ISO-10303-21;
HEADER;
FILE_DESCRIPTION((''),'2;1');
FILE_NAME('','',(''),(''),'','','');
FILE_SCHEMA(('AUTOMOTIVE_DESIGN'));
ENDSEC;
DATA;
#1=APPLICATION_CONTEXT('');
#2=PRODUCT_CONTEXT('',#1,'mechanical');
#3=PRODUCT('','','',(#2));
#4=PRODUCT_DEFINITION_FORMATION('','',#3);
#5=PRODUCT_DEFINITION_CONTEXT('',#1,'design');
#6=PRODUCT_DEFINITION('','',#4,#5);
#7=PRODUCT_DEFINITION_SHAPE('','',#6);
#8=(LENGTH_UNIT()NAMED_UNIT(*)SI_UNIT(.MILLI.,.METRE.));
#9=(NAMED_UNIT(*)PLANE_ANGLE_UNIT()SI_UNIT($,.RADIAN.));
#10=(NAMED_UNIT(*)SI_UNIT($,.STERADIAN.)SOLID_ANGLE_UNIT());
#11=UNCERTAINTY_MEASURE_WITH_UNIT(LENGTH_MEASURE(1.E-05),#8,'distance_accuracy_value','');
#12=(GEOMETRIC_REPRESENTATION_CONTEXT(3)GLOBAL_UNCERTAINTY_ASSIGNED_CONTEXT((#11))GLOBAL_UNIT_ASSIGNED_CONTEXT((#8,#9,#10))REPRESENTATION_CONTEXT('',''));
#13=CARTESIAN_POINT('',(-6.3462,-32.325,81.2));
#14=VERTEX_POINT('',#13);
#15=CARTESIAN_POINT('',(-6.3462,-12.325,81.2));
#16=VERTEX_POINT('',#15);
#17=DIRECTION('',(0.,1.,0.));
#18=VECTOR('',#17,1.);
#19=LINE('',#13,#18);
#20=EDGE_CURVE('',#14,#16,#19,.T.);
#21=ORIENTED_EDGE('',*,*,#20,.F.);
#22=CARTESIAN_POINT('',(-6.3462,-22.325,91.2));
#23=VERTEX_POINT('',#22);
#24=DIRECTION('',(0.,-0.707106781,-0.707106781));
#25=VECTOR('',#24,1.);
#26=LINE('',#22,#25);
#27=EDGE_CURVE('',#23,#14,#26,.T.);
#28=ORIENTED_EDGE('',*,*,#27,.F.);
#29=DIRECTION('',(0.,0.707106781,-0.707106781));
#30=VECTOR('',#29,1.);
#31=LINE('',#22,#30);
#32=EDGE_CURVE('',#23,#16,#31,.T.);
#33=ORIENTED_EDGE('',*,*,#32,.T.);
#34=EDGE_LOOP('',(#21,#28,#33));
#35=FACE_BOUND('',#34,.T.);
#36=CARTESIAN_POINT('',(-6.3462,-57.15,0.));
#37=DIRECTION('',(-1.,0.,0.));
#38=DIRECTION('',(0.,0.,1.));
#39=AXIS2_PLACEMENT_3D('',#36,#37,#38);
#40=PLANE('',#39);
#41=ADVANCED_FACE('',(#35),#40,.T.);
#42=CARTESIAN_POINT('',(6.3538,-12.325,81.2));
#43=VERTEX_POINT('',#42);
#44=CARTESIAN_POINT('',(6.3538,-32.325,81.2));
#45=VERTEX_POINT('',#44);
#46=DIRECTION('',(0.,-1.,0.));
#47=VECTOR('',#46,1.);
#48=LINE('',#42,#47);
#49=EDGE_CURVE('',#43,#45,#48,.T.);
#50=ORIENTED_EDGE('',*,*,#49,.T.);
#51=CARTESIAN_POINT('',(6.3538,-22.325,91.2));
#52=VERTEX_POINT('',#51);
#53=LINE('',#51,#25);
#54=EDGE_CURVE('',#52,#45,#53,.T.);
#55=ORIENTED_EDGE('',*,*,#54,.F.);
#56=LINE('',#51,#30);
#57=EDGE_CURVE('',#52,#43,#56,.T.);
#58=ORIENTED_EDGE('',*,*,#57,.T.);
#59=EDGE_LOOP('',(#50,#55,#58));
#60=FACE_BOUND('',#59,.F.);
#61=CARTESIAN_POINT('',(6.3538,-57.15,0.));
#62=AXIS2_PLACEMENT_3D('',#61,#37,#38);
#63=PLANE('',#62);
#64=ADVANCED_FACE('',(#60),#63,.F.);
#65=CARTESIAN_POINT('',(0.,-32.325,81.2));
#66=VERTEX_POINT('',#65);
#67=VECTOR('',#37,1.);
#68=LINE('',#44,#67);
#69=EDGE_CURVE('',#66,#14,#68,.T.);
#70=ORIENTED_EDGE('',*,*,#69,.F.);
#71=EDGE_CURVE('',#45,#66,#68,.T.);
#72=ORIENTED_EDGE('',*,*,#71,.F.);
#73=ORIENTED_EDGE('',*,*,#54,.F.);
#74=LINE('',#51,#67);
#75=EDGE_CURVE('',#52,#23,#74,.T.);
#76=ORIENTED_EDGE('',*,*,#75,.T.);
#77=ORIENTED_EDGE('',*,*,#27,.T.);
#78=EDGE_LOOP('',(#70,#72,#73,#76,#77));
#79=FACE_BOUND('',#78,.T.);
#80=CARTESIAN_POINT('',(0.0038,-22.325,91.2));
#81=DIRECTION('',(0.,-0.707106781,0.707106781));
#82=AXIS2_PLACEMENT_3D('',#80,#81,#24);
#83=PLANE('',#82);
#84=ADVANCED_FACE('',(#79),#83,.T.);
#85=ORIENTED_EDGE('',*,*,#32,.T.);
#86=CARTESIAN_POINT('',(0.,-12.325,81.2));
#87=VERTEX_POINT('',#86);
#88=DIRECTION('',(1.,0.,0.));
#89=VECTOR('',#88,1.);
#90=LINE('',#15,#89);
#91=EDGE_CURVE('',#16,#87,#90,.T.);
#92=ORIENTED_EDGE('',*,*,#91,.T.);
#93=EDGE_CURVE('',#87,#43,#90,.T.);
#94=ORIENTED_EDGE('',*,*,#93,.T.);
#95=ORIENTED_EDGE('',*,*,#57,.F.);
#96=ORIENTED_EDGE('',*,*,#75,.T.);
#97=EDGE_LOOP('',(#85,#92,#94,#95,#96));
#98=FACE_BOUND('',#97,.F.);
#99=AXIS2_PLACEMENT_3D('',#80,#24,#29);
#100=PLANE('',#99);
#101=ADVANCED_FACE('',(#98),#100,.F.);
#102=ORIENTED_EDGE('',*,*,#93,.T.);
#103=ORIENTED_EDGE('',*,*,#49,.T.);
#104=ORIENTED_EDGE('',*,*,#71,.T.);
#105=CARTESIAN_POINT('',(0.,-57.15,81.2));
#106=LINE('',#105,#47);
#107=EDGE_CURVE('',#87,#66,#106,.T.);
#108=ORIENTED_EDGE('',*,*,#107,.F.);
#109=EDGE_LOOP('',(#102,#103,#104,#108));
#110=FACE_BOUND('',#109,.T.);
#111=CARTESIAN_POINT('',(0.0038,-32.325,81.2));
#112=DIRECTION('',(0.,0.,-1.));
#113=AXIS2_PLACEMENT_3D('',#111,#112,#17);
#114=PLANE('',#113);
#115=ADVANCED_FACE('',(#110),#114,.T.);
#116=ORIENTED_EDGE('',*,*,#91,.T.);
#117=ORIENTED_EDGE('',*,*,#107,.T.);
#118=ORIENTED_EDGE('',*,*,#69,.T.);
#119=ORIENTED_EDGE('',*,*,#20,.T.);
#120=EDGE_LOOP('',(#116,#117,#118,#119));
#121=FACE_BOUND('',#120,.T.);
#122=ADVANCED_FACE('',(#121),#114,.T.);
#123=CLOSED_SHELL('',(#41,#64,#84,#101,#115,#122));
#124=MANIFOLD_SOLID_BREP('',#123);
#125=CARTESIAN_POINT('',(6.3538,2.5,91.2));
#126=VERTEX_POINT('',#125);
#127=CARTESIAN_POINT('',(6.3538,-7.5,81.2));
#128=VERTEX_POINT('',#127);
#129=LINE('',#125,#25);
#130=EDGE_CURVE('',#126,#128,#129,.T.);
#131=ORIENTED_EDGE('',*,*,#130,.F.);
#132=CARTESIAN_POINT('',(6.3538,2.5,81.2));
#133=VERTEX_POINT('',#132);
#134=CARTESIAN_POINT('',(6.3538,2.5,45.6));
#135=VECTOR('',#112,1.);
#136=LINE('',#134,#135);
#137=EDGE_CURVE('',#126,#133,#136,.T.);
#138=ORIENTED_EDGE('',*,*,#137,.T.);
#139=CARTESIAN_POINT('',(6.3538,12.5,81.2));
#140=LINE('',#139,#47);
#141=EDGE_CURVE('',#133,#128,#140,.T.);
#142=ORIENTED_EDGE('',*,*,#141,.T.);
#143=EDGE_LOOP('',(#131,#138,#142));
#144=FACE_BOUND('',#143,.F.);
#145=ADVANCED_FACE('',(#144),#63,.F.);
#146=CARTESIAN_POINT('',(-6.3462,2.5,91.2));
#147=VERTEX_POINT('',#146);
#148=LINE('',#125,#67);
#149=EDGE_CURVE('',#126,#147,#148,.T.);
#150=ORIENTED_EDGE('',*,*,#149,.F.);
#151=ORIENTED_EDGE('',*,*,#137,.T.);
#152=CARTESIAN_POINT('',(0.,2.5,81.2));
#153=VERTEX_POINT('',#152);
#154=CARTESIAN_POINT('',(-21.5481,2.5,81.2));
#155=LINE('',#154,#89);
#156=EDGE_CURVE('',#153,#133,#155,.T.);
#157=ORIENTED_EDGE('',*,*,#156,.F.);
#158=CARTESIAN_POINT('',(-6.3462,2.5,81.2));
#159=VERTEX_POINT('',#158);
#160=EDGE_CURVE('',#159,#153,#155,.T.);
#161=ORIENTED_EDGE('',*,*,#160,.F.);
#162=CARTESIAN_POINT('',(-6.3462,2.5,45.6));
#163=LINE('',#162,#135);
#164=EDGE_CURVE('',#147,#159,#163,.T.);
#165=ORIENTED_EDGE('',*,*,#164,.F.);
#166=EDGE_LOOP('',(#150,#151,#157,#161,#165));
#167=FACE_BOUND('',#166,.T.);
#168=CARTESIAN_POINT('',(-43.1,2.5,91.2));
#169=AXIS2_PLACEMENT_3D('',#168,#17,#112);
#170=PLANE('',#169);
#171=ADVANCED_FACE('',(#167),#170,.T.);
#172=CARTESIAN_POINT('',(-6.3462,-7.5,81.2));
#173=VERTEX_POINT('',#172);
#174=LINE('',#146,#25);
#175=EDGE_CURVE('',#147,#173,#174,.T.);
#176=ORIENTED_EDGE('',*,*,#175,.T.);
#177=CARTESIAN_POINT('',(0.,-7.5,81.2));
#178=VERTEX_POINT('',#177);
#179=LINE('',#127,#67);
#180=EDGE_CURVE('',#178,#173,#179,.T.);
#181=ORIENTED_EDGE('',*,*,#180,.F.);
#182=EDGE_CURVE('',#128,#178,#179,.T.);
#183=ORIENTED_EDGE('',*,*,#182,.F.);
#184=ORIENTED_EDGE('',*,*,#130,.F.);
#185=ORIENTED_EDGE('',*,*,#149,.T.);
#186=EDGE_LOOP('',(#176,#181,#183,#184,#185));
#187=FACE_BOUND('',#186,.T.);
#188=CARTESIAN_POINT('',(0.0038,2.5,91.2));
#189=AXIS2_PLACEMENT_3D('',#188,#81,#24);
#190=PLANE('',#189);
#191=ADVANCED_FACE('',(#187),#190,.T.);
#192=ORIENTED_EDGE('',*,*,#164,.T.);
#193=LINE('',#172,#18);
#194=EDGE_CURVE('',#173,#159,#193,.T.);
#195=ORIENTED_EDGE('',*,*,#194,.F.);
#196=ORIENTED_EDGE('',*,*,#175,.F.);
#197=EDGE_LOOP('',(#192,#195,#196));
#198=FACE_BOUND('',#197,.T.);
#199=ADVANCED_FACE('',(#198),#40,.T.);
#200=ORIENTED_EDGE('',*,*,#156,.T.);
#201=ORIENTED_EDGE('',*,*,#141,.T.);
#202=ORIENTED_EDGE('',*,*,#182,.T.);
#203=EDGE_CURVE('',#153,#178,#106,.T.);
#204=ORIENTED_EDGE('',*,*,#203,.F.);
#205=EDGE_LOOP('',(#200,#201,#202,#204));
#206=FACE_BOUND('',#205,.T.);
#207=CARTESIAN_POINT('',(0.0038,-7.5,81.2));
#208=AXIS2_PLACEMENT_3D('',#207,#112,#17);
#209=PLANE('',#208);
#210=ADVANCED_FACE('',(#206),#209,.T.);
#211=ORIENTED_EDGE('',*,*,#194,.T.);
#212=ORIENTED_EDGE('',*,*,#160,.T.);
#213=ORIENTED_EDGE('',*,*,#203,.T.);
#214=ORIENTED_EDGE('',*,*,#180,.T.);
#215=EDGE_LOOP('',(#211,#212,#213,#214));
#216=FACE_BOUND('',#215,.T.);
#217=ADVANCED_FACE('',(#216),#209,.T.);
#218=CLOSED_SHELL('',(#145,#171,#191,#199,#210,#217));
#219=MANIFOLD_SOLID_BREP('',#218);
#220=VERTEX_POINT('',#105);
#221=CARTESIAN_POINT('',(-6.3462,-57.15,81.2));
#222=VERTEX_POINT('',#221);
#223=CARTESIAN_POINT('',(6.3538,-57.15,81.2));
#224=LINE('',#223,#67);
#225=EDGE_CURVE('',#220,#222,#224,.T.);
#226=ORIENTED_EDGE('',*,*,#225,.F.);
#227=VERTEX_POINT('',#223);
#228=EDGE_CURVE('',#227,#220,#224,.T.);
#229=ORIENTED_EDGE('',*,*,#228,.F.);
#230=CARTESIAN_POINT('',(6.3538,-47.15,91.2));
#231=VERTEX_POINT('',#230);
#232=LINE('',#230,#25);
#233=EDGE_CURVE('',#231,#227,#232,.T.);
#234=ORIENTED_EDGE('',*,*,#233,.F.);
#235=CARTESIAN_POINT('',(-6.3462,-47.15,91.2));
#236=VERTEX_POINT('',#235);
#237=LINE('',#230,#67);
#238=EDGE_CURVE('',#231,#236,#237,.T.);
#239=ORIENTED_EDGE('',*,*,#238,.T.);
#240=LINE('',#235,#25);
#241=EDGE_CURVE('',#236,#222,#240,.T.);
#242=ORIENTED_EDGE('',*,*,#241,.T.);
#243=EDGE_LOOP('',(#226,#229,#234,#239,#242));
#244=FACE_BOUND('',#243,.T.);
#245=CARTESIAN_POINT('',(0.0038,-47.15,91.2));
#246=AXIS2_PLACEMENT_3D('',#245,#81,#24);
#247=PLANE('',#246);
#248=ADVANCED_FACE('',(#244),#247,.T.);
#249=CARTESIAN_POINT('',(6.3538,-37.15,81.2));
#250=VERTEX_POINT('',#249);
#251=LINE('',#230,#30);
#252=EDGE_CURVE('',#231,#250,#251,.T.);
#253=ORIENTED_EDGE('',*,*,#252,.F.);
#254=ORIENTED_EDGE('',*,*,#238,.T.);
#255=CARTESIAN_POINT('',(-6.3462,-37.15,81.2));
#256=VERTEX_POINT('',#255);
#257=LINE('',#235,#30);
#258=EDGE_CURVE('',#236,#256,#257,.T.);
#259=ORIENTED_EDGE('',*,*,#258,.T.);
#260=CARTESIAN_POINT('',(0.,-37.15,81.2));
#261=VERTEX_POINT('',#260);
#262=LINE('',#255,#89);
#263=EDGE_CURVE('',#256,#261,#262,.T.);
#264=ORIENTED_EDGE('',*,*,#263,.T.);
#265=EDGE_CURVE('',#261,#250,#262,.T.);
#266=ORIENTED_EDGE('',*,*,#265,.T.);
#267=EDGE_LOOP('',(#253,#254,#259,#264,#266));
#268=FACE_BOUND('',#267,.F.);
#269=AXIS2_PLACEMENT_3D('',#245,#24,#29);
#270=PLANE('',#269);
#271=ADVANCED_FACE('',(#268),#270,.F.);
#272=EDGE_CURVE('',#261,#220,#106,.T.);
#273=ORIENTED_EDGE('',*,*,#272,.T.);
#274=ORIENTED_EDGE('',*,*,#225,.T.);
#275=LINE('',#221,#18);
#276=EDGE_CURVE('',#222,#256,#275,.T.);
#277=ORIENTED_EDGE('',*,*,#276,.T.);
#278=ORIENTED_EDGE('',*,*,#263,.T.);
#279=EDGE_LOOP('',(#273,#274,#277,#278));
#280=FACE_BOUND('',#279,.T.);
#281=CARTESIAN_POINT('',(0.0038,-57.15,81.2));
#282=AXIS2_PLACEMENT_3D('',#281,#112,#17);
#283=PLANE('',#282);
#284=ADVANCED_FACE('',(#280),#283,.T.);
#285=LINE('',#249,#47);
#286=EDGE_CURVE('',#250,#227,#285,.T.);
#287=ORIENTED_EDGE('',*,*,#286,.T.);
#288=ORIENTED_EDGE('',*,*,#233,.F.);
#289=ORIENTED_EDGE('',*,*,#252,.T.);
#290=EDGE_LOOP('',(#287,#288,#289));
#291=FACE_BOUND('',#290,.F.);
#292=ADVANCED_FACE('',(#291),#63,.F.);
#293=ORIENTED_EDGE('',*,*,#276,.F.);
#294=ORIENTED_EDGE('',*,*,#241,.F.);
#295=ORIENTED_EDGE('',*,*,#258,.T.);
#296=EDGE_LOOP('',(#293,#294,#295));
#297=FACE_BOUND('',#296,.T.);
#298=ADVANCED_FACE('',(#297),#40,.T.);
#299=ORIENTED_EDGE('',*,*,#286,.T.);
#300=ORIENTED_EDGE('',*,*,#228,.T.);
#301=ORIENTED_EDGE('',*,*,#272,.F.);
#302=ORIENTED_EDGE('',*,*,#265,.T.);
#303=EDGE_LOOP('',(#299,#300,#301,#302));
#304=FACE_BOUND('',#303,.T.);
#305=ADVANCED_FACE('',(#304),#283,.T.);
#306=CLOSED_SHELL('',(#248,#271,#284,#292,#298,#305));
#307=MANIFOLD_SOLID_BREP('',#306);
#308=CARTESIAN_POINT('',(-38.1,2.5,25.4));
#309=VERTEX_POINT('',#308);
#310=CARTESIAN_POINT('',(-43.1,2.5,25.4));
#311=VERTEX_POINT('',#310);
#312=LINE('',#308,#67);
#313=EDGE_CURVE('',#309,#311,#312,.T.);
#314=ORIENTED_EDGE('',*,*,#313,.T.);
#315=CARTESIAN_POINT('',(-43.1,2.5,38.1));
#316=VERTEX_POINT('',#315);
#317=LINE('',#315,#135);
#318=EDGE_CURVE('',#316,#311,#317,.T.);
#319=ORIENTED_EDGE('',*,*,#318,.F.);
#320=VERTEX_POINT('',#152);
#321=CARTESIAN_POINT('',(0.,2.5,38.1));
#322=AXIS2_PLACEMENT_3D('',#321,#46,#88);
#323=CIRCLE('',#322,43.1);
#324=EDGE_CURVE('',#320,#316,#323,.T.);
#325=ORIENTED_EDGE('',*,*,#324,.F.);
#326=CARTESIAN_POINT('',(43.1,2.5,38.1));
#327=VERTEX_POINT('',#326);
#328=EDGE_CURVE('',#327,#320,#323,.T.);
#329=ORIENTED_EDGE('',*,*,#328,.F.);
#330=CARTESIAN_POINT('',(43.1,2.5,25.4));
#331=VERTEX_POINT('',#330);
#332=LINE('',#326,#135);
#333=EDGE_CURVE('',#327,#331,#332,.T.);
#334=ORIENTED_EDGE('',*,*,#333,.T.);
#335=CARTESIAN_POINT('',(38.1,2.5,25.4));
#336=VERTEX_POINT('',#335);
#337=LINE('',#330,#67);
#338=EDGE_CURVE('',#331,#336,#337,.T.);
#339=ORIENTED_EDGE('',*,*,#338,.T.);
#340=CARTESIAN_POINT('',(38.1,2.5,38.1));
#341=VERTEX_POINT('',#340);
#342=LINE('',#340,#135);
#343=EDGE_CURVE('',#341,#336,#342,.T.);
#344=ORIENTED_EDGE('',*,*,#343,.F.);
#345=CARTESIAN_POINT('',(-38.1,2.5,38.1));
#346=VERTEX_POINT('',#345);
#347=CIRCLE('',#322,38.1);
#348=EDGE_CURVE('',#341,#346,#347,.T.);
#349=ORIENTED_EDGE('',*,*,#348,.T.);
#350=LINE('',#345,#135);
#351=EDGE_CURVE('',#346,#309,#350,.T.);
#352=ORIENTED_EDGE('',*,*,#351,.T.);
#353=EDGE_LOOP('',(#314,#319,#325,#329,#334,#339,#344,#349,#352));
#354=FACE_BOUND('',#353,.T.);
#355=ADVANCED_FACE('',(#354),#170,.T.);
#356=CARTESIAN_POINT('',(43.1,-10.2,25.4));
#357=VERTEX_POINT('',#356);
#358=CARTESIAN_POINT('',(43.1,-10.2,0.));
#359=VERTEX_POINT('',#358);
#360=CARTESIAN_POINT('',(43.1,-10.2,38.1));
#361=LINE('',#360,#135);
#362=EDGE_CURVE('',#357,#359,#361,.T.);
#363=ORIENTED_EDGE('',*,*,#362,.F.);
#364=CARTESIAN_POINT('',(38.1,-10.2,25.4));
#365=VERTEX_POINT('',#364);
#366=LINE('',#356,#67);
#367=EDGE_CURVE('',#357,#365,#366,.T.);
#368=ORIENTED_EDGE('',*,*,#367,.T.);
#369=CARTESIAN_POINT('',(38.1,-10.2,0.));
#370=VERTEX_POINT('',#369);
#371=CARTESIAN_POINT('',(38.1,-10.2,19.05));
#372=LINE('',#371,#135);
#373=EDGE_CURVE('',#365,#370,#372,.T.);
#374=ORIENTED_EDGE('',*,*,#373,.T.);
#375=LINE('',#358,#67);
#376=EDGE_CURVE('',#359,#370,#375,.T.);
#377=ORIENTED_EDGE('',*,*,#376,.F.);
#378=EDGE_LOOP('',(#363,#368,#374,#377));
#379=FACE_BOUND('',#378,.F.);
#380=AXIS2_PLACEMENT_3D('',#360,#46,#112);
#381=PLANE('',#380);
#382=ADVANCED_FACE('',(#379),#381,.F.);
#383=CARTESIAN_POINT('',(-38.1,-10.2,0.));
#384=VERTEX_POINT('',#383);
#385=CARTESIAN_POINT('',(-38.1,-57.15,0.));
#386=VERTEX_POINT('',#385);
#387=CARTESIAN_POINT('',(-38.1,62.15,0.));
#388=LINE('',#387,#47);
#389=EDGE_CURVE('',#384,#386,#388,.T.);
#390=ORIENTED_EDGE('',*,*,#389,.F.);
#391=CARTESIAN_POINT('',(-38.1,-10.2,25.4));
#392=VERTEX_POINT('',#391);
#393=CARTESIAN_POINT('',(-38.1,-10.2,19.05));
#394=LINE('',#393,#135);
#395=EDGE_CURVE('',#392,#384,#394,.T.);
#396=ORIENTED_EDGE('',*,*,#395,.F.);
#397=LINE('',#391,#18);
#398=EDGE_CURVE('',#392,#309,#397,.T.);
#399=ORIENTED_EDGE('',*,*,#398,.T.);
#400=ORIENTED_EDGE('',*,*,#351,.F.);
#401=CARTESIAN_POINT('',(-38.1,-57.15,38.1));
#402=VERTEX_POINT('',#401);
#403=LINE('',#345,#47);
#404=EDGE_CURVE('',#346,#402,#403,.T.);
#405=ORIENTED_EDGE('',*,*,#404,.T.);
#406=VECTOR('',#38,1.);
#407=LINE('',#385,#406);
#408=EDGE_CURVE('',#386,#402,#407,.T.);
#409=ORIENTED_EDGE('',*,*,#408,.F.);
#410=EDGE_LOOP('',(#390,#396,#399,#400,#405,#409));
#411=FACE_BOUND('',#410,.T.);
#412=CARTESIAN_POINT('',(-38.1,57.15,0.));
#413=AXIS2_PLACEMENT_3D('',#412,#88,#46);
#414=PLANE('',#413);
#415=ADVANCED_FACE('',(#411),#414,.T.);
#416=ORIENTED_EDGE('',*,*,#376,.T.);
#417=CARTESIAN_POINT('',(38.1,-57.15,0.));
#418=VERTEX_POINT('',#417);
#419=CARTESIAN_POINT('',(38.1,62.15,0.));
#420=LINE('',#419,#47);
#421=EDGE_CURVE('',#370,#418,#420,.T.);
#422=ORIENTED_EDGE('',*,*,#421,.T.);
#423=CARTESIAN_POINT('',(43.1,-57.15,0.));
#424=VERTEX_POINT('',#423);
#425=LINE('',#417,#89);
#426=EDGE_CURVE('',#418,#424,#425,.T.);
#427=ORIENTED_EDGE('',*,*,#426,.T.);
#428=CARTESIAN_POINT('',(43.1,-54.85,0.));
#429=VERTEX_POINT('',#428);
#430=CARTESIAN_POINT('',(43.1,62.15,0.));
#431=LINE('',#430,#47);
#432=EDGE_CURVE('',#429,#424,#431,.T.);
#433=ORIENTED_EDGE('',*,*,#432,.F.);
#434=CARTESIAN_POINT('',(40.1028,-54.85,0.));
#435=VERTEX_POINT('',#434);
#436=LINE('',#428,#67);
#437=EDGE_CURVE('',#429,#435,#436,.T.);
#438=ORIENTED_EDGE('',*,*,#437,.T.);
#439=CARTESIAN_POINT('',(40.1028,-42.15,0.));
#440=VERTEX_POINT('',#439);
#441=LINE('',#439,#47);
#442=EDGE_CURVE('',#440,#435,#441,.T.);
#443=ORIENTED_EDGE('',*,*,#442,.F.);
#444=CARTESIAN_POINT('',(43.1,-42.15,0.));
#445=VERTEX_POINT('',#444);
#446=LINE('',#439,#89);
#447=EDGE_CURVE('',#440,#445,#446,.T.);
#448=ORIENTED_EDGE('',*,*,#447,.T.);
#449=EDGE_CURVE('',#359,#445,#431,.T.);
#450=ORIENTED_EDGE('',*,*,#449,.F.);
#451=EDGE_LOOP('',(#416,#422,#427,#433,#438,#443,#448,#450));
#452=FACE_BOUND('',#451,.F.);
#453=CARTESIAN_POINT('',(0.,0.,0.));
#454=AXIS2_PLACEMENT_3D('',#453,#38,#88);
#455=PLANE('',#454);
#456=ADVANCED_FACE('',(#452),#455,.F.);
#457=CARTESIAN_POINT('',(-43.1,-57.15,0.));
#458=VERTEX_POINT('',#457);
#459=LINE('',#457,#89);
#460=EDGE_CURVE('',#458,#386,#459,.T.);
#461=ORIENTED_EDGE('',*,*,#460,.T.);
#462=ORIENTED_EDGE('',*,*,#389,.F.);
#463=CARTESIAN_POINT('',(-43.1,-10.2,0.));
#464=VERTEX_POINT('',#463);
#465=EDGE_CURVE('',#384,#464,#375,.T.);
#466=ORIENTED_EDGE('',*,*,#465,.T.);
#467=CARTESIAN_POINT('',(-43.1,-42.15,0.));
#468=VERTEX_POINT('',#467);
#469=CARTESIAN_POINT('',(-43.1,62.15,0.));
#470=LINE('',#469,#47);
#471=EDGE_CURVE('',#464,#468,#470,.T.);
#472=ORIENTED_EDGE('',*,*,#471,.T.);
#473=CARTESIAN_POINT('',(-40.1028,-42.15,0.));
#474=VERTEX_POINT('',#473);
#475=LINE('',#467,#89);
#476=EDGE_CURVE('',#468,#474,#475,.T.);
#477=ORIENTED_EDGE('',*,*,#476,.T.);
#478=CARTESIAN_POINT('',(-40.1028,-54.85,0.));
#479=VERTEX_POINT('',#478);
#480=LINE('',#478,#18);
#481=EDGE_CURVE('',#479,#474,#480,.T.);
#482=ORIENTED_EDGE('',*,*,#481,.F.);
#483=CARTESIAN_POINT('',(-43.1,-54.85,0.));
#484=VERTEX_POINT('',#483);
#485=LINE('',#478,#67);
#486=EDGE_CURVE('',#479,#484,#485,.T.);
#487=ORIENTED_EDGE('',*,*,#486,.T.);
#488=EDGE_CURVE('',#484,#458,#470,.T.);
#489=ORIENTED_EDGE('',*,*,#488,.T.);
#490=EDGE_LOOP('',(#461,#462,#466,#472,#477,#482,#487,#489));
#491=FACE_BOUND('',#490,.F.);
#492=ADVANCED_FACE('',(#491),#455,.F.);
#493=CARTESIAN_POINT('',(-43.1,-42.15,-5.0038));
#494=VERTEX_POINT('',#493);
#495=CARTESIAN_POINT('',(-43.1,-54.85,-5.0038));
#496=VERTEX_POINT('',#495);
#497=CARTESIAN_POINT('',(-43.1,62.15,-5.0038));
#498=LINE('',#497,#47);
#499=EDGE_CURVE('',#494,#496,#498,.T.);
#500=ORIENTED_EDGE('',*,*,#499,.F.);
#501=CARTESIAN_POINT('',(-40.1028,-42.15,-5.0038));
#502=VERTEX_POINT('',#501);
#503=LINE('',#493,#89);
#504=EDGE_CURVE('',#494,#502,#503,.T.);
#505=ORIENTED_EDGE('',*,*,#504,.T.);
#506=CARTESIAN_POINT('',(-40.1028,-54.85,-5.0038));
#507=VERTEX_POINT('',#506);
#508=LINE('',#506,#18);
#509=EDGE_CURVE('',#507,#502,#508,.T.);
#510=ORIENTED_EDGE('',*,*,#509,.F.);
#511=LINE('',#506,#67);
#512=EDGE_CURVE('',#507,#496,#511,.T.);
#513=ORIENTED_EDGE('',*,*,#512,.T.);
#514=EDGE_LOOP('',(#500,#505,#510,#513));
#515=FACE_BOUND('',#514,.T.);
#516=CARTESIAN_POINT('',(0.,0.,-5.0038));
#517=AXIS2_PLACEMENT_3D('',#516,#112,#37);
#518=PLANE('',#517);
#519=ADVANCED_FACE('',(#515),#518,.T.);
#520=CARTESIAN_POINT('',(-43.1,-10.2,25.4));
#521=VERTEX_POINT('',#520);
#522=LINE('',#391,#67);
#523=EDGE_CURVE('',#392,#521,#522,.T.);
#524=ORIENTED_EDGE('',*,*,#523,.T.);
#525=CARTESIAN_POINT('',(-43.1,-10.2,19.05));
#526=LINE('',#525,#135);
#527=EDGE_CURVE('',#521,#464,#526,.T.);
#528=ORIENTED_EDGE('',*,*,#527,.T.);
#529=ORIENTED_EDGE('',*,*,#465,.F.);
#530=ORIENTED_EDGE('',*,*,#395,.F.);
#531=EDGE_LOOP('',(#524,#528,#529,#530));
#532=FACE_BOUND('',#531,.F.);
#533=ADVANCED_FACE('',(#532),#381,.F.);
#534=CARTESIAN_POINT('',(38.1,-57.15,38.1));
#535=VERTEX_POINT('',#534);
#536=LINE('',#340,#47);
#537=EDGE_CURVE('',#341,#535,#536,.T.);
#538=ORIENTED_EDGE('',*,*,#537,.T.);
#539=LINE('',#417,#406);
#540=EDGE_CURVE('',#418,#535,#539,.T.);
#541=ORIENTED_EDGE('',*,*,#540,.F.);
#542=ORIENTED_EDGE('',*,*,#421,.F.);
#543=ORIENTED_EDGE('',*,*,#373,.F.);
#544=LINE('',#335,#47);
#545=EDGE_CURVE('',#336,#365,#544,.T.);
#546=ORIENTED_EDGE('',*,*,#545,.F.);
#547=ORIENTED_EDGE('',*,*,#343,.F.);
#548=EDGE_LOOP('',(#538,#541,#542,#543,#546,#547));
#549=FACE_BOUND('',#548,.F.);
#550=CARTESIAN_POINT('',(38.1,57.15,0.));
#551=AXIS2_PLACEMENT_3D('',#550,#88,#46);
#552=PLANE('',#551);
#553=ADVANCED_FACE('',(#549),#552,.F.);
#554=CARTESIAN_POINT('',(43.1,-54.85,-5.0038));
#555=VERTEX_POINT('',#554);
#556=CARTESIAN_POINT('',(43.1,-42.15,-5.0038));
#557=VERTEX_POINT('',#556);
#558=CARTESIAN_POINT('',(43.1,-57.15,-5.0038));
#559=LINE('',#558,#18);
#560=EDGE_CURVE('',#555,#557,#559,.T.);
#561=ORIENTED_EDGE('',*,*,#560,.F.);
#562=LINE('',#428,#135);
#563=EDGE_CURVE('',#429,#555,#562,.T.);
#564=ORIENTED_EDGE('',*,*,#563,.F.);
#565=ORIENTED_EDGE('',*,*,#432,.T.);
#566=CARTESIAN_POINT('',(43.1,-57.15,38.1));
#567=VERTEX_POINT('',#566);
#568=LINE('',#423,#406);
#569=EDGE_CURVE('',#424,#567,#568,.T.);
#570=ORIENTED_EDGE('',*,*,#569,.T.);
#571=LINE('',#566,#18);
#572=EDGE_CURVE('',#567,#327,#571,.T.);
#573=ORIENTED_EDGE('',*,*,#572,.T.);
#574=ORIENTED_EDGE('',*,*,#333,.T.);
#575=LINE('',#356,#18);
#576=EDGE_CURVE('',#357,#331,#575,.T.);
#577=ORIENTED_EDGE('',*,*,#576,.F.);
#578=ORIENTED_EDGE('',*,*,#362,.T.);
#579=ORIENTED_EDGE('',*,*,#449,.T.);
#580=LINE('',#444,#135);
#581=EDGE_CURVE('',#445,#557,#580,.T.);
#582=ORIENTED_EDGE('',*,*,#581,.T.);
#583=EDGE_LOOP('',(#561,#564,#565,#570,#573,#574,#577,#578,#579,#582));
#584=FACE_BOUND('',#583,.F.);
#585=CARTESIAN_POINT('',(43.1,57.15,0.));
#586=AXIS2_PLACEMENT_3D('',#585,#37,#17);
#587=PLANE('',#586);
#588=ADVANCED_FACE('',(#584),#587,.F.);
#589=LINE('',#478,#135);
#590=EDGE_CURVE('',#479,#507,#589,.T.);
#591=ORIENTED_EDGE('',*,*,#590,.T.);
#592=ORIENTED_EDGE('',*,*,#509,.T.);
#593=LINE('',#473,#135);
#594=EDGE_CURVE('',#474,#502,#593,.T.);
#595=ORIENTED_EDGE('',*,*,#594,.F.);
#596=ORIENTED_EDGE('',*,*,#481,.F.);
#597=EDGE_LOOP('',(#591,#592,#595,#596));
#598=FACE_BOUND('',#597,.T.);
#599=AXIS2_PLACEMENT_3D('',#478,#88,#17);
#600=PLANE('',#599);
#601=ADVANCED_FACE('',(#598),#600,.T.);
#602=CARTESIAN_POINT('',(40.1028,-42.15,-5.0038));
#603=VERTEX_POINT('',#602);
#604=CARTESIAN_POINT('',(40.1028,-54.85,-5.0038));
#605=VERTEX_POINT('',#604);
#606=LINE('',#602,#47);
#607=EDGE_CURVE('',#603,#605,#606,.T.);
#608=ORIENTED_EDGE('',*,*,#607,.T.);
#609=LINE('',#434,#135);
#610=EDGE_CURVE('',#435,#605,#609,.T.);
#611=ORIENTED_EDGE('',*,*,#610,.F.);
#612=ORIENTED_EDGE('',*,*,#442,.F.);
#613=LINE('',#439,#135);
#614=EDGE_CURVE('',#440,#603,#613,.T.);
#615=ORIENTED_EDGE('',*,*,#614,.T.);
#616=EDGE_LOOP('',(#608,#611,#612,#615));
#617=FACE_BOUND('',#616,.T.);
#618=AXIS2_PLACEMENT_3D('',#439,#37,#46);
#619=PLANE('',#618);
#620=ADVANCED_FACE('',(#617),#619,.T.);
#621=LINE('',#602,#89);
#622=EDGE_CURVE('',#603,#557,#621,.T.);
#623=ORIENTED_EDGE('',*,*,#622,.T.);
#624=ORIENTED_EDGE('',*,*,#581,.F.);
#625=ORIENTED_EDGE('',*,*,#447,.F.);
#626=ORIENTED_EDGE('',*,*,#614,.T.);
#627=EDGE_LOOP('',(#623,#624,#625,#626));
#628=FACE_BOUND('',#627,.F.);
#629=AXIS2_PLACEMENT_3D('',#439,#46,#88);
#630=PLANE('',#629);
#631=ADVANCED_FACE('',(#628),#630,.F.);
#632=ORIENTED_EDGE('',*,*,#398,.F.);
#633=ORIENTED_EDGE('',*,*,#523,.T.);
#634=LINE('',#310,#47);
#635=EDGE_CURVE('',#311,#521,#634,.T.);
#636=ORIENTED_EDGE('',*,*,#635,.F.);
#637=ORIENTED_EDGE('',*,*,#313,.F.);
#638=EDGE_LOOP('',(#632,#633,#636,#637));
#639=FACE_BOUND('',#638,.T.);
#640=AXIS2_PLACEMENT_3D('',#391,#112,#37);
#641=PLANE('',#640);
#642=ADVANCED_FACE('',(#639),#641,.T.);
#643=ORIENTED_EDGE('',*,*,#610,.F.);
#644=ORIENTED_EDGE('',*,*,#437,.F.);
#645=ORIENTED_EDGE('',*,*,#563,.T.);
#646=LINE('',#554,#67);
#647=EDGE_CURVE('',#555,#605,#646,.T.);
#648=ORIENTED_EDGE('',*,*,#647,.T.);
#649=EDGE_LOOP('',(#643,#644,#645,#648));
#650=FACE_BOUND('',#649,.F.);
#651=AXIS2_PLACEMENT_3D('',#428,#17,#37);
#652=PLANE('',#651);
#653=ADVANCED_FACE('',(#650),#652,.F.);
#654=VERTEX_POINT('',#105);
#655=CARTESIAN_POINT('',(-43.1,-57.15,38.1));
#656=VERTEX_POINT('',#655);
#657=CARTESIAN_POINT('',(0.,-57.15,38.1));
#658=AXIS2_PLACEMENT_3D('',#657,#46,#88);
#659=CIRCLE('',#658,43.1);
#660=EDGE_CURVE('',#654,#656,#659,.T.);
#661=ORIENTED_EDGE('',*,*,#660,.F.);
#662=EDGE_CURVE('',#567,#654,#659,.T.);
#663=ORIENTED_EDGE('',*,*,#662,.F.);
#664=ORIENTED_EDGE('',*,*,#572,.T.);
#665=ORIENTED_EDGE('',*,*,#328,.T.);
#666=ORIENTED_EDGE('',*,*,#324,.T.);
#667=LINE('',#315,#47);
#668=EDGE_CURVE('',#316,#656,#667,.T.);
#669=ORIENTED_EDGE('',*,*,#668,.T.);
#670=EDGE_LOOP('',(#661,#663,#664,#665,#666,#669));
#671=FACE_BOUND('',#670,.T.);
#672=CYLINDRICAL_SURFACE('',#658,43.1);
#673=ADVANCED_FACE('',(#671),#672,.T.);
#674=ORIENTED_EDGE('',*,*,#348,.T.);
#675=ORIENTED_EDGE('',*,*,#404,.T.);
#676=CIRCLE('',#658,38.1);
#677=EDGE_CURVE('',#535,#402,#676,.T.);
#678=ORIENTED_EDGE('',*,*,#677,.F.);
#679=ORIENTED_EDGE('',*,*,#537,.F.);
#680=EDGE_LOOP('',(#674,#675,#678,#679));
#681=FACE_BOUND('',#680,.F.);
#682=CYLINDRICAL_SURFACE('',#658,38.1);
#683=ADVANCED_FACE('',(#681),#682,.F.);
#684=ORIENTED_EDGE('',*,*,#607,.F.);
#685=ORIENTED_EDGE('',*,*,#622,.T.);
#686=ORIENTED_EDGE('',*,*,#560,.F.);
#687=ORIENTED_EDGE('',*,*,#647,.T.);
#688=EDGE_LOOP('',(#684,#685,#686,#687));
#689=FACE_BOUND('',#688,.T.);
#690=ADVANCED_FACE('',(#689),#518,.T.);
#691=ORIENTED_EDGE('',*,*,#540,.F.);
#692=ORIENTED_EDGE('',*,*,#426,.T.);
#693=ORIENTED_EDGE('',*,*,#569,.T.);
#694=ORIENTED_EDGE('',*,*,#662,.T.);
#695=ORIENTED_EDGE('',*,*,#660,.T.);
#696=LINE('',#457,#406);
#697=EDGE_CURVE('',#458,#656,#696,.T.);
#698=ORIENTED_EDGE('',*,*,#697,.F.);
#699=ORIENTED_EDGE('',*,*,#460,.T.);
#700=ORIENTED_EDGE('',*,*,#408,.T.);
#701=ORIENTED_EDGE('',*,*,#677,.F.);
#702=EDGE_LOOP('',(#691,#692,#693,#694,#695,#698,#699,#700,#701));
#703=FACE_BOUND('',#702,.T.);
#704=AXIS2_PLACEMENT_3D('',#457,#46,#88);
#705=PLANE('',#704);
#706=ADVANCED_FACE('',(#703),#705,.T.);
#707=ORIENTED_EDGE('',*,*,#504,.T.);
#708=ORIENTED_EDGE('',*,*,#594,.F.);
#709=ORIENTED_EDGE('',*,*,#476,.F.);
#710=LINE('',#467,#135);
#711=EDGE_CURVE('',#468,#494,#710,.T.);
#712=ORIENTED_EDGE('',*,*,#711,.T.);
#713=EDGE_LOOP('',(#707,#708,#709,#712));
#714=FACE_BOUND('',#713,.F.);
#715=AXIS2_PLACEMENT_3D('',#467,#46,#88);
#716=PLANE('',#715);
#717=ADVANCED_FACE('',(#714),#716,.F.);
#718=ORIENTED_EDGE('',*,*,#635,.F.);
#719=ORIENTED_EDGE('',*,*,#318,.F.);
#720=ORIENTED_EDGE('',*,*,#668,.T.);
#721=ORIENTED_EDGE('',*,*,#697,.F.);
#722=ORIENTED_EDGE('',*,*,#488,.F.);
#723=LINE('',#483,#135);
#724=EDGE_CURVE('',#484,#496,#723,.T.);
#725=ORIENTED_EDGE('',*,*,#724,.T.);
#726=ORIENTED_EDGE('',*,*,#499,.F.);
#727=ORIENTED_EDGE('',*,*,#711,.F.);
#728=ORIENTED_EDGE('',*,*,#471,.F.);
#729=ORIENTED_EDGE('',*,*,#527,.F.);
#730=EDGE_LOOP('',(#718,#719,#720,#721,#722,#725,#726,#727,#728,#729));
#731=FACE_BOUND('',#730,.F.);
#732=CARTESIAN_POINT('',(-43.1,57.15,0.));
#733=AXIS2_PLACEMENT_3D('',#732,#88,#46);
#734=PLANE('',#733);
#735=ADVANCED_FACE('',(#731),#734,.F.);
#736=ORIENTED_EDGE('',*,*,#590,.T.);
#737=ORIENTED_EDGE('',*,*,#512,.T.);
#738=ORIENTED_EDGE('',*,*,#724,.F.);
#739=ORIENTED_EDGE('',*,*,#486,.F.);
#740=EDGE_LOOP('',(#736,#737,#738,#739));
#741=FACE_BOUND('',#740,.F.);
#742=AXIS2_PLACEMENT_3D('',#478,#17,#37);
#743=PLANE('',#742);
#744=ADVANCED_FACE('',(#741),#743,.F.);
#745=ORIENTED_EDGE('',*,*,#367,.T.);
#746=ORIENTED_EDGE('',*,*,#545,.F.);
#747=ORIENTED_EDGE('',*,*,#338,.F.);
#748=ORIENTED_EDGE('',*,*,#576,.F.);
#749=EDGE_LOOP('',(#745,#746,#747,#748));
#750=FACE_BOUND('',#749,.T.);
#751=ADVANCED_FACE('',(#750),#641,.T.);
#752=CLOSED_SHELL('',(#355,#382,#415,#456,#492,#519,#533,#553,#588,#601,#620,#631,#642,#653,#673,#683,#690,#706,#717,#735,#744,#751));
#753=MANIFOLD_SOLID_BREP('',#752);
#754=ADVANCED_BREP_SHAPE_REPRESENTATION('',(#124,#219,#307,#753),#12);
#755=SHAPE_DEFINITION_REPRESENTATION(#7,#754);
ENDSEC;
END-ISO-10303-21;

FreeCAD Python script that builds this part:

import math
import FreeCAD as App
import Part
import Sketcher
from FreeCAD import Vector
Q = App.Units.Quantity

doc = App.newDocument("Part")
body = doc.addObject("PartDesign::Body", "Body")
body.AllowCompound = True

# Sketch on XY plane
sketch1 = body.newObject("Sketcher::SketchObject", "Sketch")
sketch1.AttachmentSupport = (doc.getObject("XY_Plane"), [""])
sketch1.MapMode = "FlatFace"
sketch1.addGeometry([
    Part.LineSegment(Vector(-43, -57, 0), Vector(-38, -57, 0)),  # 0
    Part.LineSegment(Vector(-38, -57, 0), Vector(-38, 57, 0)),  # 1
    Part.LineSegment(Vector(-38, 57, 0), Vector(38, 57, 0)),  # 2
    Part.LineSegment(Vector(38, 57, 0), Vector(38, -57, 0)),  # 3
    Part.LineSegment(Vector(38, -57, 0), Vector(43, -57, 0)),  # 4
    Part.LineSegment(Vector(43, -57, 0), Vector(43, 62, 0)),  # 5
    Part.LineSegment(Vector(43, 62, 0), Vector(-43, 62, 0)),  # 6
    Part.LineSegment(Vector(-43, 62, 0), Vector(-43, -57, 0)),  # 7
], False)
sketch1.addConstraint([
    Sketcher.Constraint("Coincident", 0, 2, 1, 1),
    Sketcher.Constraint("Coincident", 1, 2, 2, 1),
    Sketcher.Constraint("Coincident", 2, 2, 3, 1),
    Sketcher.Constraint("Coincident", 3, 2, 4, 1),
    Sketcher.Constraint("Coincident", 4, 2, 5, 1),
    Sketcher.Constraint("Coincident", 5, 2, 6, 1),
    Sketcher.Constraint("Coincident", 6, 2, 7, 1),
    Sketcher.Constraint("Coincident", 7, 2, 0, 1),
    Sketcher.Constraint("Horizontal", 0),
    Sketcher.Constraint("Vertical", 1),
    Sketcher.Constraint("Horizontal", 2),
    Sketcher.Constraint("Vertical", 3),
    Sketcher.Constraint("Horizontal", 4),
    Sketcher.Constraint("Vertical", 5),
    Sketcher.Constraint("Horizontal", 6),
    Sketcher.Constraint("Vertical", 7),
    Sketcher.Constraint("Symmetric", 0, 2, 2, 2, -1, 1),
    Sketcher.Constraint("Symmetric", 4, 2, 7, 2, -2),
    Sketcher.Constraint("DistanceX", 2, 1, 2, 2, Q("3 in")),
    Sketcher.Constraint("DistanceY", 1, 1, 1, 2, Q("4.5 in")),
    Sketcher.Constraint("DistanceX", 0, 1, 0, 2, Q("5 mm")),
    Sketcher.Constraint("DistanceY", 2, 2, 5, 2, Q("5 mm")),
])
pad1 = body.newObject("PartDesign::Pad", "Pad")
pad1.Profile = sketch1
pad1.Length = Q("1.5 in")

# Sketch on XZ plane
sketch2 = body.newObject("Sketcher::SketchObject", "Sketch001")
sketch2.AttachmentSupport = (doc.getObject("XZ_Plane"), [""])
sketch2.MapMode = "FlatFace"
sketch2.AttachmentOffset = App.Placement(Vector(0, 0, 2.25 * 25.4), App.Rotation())
sketch2.addGeometry([
    Part.LineSegment(Vector(-43, 38, 0), Vector(-38, 38, 0)),
    Part.ArcOfCircle(Part.Circle(Vector(0, 38, 0), Vector(0, 0, 1), 38), math.radians(0), math.radians(180)),
    Part.LineSegment(Vector(38, 38, 0), Vector(43, 38, 0)),
    Part.ArcOfCircle(Part.Circle(Vector(0, 38, 0), Vector(0, 0, 1), 43), math.radians(0), math.radians(180)),
], False)
sketch2.addConstraint([
    Sketcher.Constraint("Coincident", 0, 2, 1, 2),
    Sketcher.Constraint("Coincident", 1, 1, 2, 1),
    Sketcher.Constraint("Coincident", 2, 2, 3, 1),
    Sketcher.Constraint("Coincident", 3, 2, 0, 1),
    Sketcher.Constraint("Horizontal", 0),
    Sketcher.Constraint("Horizontal", 2),
    Sketcher.Constraint("Coincident", 3, 3, 1, 3),
    Sketcher.Constraint("Symmetric", 0, 2, 1, 1, -2),
    Sketcher.Constraint("Horizontal", 3, 3, 0, 2),
    Sketcher.Constraint("Radius", 1, Q("1.5 in")),
    Sketcher.Constraint("DistanceY", -1, 1, 1, 3, Q("1.5 in")),
    Sketcher.Constraint("Radius", 3, Q("43.1 mm")),
])
pad2 = body.newObject("PartDesign::Pad", "Pad001")
pad2.Profile = sketch2
pad2.Length = 119.3
pad2.Reversed = True

# Sketch on XZ plane
sketch3 = body.newObject("Sketcher::SketchObject", "Sketch002")
sketch3.AttachmentSupport = (doc.getObject("XZ_Plane"), [""])
sketch3.MapMode = "FlatFace"
sketch3.AttachmentOffset = App.Placement(Vector(0, 0, -62.15), App.Rotation())
sketch3.addGeometry([
    Part.LineSegment(Vector(38, 38, 0), Vector(-38, 38, 0)),
    Part.ArcOfCircle(Part.Circle(Vector(0, 38, 0), Vector(0, 0, 1), 38), math.radians(0), math.radians(180)),
], False)
sketch3.addConstraint([
    Sketcher.Constraint("Coincident", 0, 1, 1, 1),
    Sketcher.Constraint("Coincident", 1, 2, 0, 2),
    Sketcher.Constraint("Horizontal", 0),
    Sketcher.Constraint("PointOnObject", 1, 3, -2),
    Sketcher.Constraint("Horizontal", 1, 3, 0, 1),
    Sketcher.Constraint("Radius", 1, Q("1.5 in")),
    Sketcher.Constraint("DistanceY", -1, 1, 1, 3, Q("1.5 in")),
])
pad3 = body.newObject("PartDesign::Pad", "Pad002")
pad3.Profile = sketch3
pad3.Length = 5

# Sketch on XZ plane
sketch4 = body.newObject("Sketcher::SketchObject", "Sketch003")
sketch4.AttachmentSupport = (doc.getObject("XZ_Plane"), [""])
sketch4.MapMode = "FlatFace"
sketch4.AttachmentOffset = App.Placement(Vector(0, 0, -62.15), App.Rotation())
sketch4.addGeometry(Part.Circle(Vector(23.4, 4.7, 0), Vector(0, 0, 1), 3.3), False)
sketch4.addConstraint([
    Sketcher.Constraint("Diameter", 0, Q("6.55 mm")),
    Sketcher.Constraint("DistanceX", -1, 1, 0, 3, Q("0.9193 in")),
    Sketcher.Constraint("DistanceY", -1, 1, 0, 3, Q("4.725 mm")),
])
pocket1 = body.newObject("PartDesign::Pocket", "Pocket")
pocket1.Profile = sketch4
pocket1.Length = 5
pocket1.Reversed = True

# Sketch on YZ plane
sketch5 = body.newObject("Sketcher::SketchObject", "Sketch004")
sketch5.AttachmentSupport = (doc.getObject("YZ_Plane"), [""])
sketch5.MapMode = "FlatFace"
sketch5.AttachmentOffset = App.Placement(Vector(0, 0, 0.0038), App.Rotation())
sketch5.addGeometry([
    Part.LineSegment(Vector(42, 81, 0), Vector(52, 91, 0)),  # 0
    Part.LineSegment(Vector(52, 91, 0), Vector(62, 81, 0)),  # 1
    Part.LineSegment(Vector(62, 81, 0), Vector(42, 81, 0)),  # 2
    Part.LineSegment(Vector(17, 81, 0), Vector(27, 91, 0)),  # 3
    Part.LineSegment(Vector(27, 91, 0), Vector(37, 81, 0)),  # 4
    Part.LineSegment(Vector(37, 81, 0), Vector(17, 81, 0)),  # 5
    Part.LineSegment(Vector(-8, 81, 0), Vector(2, 91, 0)),  # 6
    Part.LineSegment(Vector(2, 91, 0), Vector(12, 81, 0)),  # 7
    Part.LineSegment(Vector(12, 81, 0), Vector(-8, 81, 0)),  # 8
    Part.LineSegment(Vector(-32, 81, 0), Vector(-22, 91, 0)),  # 9
    Part.LineSegment(Vector(-22, 91, 0), Vector(-12, 81, 0)),  # 10
    Part.LineSegment(Vector(-12, 81, 0), Vector(-32, 81, 0)),  # 11
    Part.LineSegment(Vector(-57, 81, 0), Vector(-47, 91, 0)),  # 12
    Part.LineSegment(Vector(-47, 91, 0), Vector(-37, 81, 0)),  # 13
    Part.LineSegment(Vector(-37, 81, 0), Vector(-57, 81, 0)),  # 14
], False)
sketch5.addConstraint([
    Sketcher.Constraint("Coincident", 0, 2, 1, 1),
    Sketcher.Constraint("Coincident", 1, 2, 2, 1),
    Sketcher.Constraint("Coincident", 2, 2, 0, 1),
    Sketcher.Constraint("Coincident", 3, 2, 4, 1),
    Sketcher.Constraint("Coincident", 4, 2, 5, 1),
    Sketcher.Constraint("Coincident", 5, 2, 3, 1),
    Sketcher.Constraint("Coincident", 6, 2, 7, 1),
    Sketcher.Constraint("Coincident", 7, 2, 8, 1),
    Sketcher.Constraint("Coincident", 8, 2, 6, 1),
    Sketcher.Constraint("Coincident", 9, 2, 10, 1),
    Sketcher.Constraint("Coincident", 10, 2, 11, 1),
    Sketcher.Constraint("Coincident", 11, 2, 9, 1),
    Sketcher.Constraint("Coincident", 12, 2, 13, 1),
    Sketcher.Constraint("Coincident", 13, 2, 14, 1),
    Sketcher.Constraint("Coincident", 14, 2, 12, 1),
    Sketcher.Constraint("Horizontal", 2),
    Sketcher.Constraint("Horizontal", 5),
    Sketcher.Constraint("Horizontal", 8),
    Sketcher.Constraint("Horizontal", 11),
    Sketcher.Constraint("Horizontal", 14),
    Sketcher.Constraint("Perpendicular", 0, 1),
    Sketcher.Constraint("Perpendicular", 1, 3),
    Sketcher.Constraint("Perpendicular", 3, 4),
    Sketcher.Constraint("Perpendicular", 4, 6),
    Sketcher.Constraint("Perpendicular", 6, 7),
    Sketcher.Constraint("Perpendicular", 7, 9),
    Sketcher.Constraint("Perpendicular", 9, 10),
    Sketcher.Constraint("Perpendicular", 10, 12),
    Sketcher.Constraint("Perpendicular", 12, 13),
    Sketcher.Constraint("Horizontal", 0, 2, 3, 2),
    Sketcher.Constraint("Horizontal", 2, 2, 4, 2),
    Sketcher.Constraint("Horizontal", 3, 2, 6, 2),
    Sketcher.Constraint("Horizontal", 5, 2, 7, 2),
    Sketcher.Constraint("Horizontal", 6, 2, 9, 2),
    Sketcher.Constraint("Horizontal", 8, 2, 10, 2),
    Sketcher.Constraint("Horizontal", 9, 2, 12, 2),
    Sketcher.Constraint("Horizontal", 11, 2, 13, 2),
    Sketcher.Constraint("Equal", 0, 1),
    Sketcher.Constraint("DistanceX", 2, 2, 2, 1, Q("0.7874 in")),
    Sketcher.Constraint("DistanceX", 14, 2, -1, 1, Q("2.25 in")),
    Sketcher.Constraint("DistanceX", 3, 2, 0, 2, Q("24.825 mm")),
    Sketcher.Constraint("DistanceX", 6, 2, 3, 2, Q("24.825 mm")),
    Sketcher.Constraint("DistanceX", 9, 2, 6, 2, Q("24.825 mm")),
    Sketcher.Constraint("DistanceX", 12, 2, 9, 2, Q("24.825 mm")),
    Sketcher.Constraint("DistanceY", -1, 1, 0, 2, Q("91.2 mm")),
])
pad4 = body.newObject("PartDesign::Pad", "Pad003")
pad4.Profile = sketch5
pad4.Length = Q("0.5 in")
pad4.Midplane = True

# Sketch on XY plane
sketch6 = body.newObject("Sketcher::SketchObject", "Sketch005")
sketch6.AttachmentSupport = (doc.getObject("XY_Plane"), [""])
sketch6.MapMode = "FlatFace"
sketch6.addGeometry([
    Part.LineSegment(Vector(-43.1, -54.9, 0), Vector(-43.1, -42.1, 0)),  # 0
    Part.LineSegment(Vector(-43.1, -42.1, 0), Vector(-40.1, -42.1, 0)),  # 1
    Part.LineSegment(Vector(-40.1, -42.1, 0), Vector(-40.1, -54.9, 0)),  # 2
    Part.LineSegment(Vector(-40.1, -54.9, 0), Vector(-43.1, -54.9, 0)),  # 3
    Part.LineSegment(Vector(-40.1, 36.8, 0), Vector(-40.1, 24.1, 0)),  # 4
    Part.LineSegment(Vector(-40.1, 24.1, 0), Vector(-43.1, 24.1, 0)),  # 5
    Part.LineSegment(Vector(-43.1, 24.1, 0), Vector(-43.1, 36.8, 0)),  # 6
    Part.LineSegment(Vector(-43.1, 36.8, 0), Vector(-40.1, 36.8, 0)),  # 7
    Part.LineSegment(Vector(40.1, -42.1, 0), Vector(43.1, -42.1, 0)),  # 8
    Part.LineSegment(Vector(43.1, -42.1, 0), Vector(43.1, -54.9, 0)),  # 9
    Part.LineSegment(Vector(43.1, -54.9, 0), Vector(40.1, -54.9, 0)),  # 10
    Part.LineSegment(Vector(40.1, -54.9, 0), Vector(40.1, -42.1, 0)),  # 11
    Part.LineSegment(Vector(40.1, 24.1, 0), Vector(40.1, 36.8, 0)),  # 12
    Part.LineSegment(Vector(40.1, 36.8, 0), Vector(43.1, 36.8, 0)),  # 13
    Part.LineSegment(Vector(43.1, 36.8, 0), Vector(43.1, 24.1, 0)),  # 14
    Part.LineSegment(Vector(43.1, 24.1, 0), Vector(40.1, 24.1, 0)),  # 15
], False)
sketch6.addConstraint([
    Sketcher.Constraint("Coincident", 0, 2, 1, 1),
    Sketcher.Constraint("Coincident", 1, 2, 2, 1),
    Sketcher.Constraint("Coincident", 2, 2, 3, 1),
    Sketcher.Constraint("Coincident", 3, 2, 0, 1),
    Sketcher.Constraint("Coincident", 4, 2, 5, 1),
    Sketcher.Constraint("Coincident", 5, 2, 6, 1),
    Sketcher.Constraint("Coincident", 6, 2, 7, 1),
    Sketcher.Constraint("Coincident", 7, 2, 4, 1),
    Sketcher.Constraint("Coincident", 8, 2, 9, 1),
    Sketcher.Constraint("Coincident", 9, 2, 10, 1),
    Sketcher.Constraint("Coincident", 10, 2, 11, 1),
    Sketcher.Constraint("Coincident", 11, 2, 8, 1),
    Sketcher.Constraint("Coincident", 12, 2, 13, 1),
    Sketcher.Constraint("Coincident", 13, 2, 14, 1),
    Sketcher.Constraint("Coincident", 14, 2, 15, 1),
    Sketcher.Constraint("Coincident", 15, 2, 12, 1),
    Sketcher.Constraint("Vertical", 0),
    Sketcher.Constraint("Horizontal", 1),
    Sketcher.Constraint("Vertical", 2),
    Sketcher.Constraint("Horizontal", 3),
    Sketcher.Constraint("Vertical", 4),
    Sketcher.Constraint("Horizontal", 5),
    Sketcher.Constraint("Vertical", 6),
    Sketcher.Constraint("Horizontal", 7),
    Sketcher.Constraint("Horizontal", 8),
    Sketcher.Constraint("Vertical", 9),
    Sketcher.Constraint("Horizontal", 10),
    Sketcher.Constraint("Vertical", 11),
    Sketcher.Constraint("Vertical", 12),
    Sketcher.Constraint("Horizontal", 13),
    Sketcher.Constraint("Vertical", 14),
    Sketcher.Constraint("Horizontal", 15),
    Sketcher.Constraint("Symmetric", 0, 2, 8, 2, -2),
    Sketcher.Constraint("Symmetric", 2, 2, 10, 2, -2),
    Sketcher.Constraint("Symmetric", 7, 2, 12, 2, -2),
    Sketcher.Constraint("Symmetric", 5, 2, 14, 2, -2),
    Sketcher.Constraint("Vertical", 3, 2, 5, 2),
    Sketcher.Constraint("Equal", 2, 4),
    Sketcher.Constraint("DistanceY", 0, 1, 0, 2, Q("0.5 in")),
    Sketcher.Constraint("DistanceX", 1, 1, 1, 2, Q("0.118 in")),
    Sketcher.Constraint("DistanceX", 5, 2, 5, 1, Q("0.1181 in")),
    Sketcher.Constraint("DistanceY", 1, 2, 4, 2, Q("2.6063 in")),
    Sketcher.Constraint("DistanceX", 1, 2, 8, 2, Q("3.2757 in")),
    Sketcher.Constraint("DistanceY", 0, 2, -1, 1, Q("42.15 mm")),
])
pad5 = body.newObject("PartDesign::Pad", "Pad004")
pad5.Profile = sketch6
pad5.Length = Q("0.197 in")
pad5.Reversed = True

# Sketch on XY plane
sketch7 = body.newObject("Sketcher::SketchObject", "Sketch006")
sketch7.AttachmentSupport = (doc.getObject("XY_Plane"), [""])
sketch7.MapMode = "FlatFace"
sketch7.addGeometry([
    Part.LineSegment(Vector(-4.3, 57.1, 0), Vector(-4.3, 59.6, 0)),
    Part.LineSegment(Vector(-4.3, 59.6, 0), Vector(6.3, 59.6, 0)),
    Part.LineSegment(Vector(6.3, 59.6, 0), Vector(6.3, 57.1, 0)),
    Part.LineSegment(Vector(6.3, 57.1, 0), Vector(-4.3, 57.1, 0)),
], False)
sketch7.addConstraint([
    Sketcher.Constraint("Coincident", 0, 2, 1, 1),
    Sketcher.Constraint("Coincident", 1, 2, 2, 1),
    Sketcher.Constraint("Coincident", 2, 2, 3, 1),
    Sketcher.Constraint("Coincident", 3, 2, 0, 1),
    Sketcher.Constraint("Vertical", 0),
    Sketcher.Constraint("Horizontal", 1),
    Sketcher.Constraint("Vertical", 2),
    Sketcher.Constraint("Horizontal", 3),
    Sketcher.Constraint("DistanceX", -1, 1, 1, 2, Q("0.25 in")),
    Sketcher.Constraint("DistanceY", -1, 1, 2, 2, Q("2.25 in")),
    Sketcher.Constraint("DistanceX", 1, 1, 1, 2, Q("10.628 mm")),
    Sketcher.Constraint("DistanceY", 0, 1, 0, 2, Q("2.5 mm")),
])
pocket2 = body.newObject("PartDesign::Pocket", "Pocket001")
pocket2.Profile = sketch7
pocket2.Length = Q("2 in")
pocket2.Reversed = True

# Sketch on XY plane
sketch8 = body.newObject("Sketcher::SketchObject", "Sketch007")
sketch8.AttachmentSupport = (doc.getObject("XY_Plane"), [""])
sketch8.MapMode = "FlatFace"
sketch8.addGeometry([
    Part.LineSegment(Vector(10.8, 57.1, 0), Vector(6.3, 57.1, 0)),
    Part.LineSegment(Vector(6.3, 57.1, 0), Vector(6.3, 59.6, 0)),
    Part.LineSegment(Vector(6.3, 59.6, 0), Vector(10.8, 59.6, 0)),
    Part.LineSegment(Vector(10.8, 59.6, 0), Vector(10.8, 57.1, 0)),
], False)
sketch8.addConstraint([
    Sketcher.Constraint("Coincident", 0, 2, 1, 1),
    Sketcher.Constraint("Coincident", 1, 2, 2, 1),
    Sketcher.Constraint("Coincident", 2, 2, 3, 1),
    Sketcher.Constraint("Coincident", 3, 2, 0, 1),
    Sketcher.Constraint("Horizontal", 0),
    Sketcher.Constraint("Vertical", 1),
    Sketcher.Constraint("Horizontal", 2),
    Sketcher.Constraint("Vertical", 3),
    Sketcher.Constraint("DistanceX", -1, 1, 0, 2, Q("0.25 in")),
    Sketcher.Constraint("DistanceY", -1, 1, 0, 2, Q("2.25 in")),
    Sketcher.Constraint("DistanceX", 0, 2, 0, 1, Q("0.1737 in")),
    Sketcher.Constraint("DistanceY", 1, 1, 1, 2, Q("2.5 mm")),
])
pocket3 = body.newObject("PartDesign::Pocket", "Pocket002")
pocket3.Profile = sketch8
pocket3.Length = Q("2 in")
pocket3.Reversed = True

# Sketch on YZ plane
sketch9 = body.newObject("Sketcher::SketchObject", "Sketch008")
sketch9.AttachmentSupport = (doc.getObject("YZ_Plane"), [""])
sketch9.MapMode = "FlatFace"
sketch9.AttachmentOffset = App.Placement(Vector(0, 0, -43.1), App.Rotation())
sketch9.addGeometry([
    Part.LineSegment(Vector(2, -36, 0), Vector(2, 91, 0)),
    Part.LineSegment(Vector(2, 91, 0), Vector(166, 144, 0)),
    Part.LineSegment(Vector(166, 144, 0), Vector(150, -57, 0)),
    Part.LineSegment(Vector(150, -57, 0), Vector(2, -36, 0)),
], False)
sketch9.addConstraint([
    Sketcher.Constraint("Coincident", 0, 2, 1, 1),
    Sketcher.Constraint("Coincident", 1, 2, 2, 1),
    Sketcher.Constraint("Coincident", 2, 2, 3, 1),
    Sketcher.Constraint("Coincident", 3, 2, 0, 1),
    Sketcher.Constraint("Vertical", 0),
    Sketcher.Constraint("DistanceY", 0, 1, 0, 2, Q("126.986 mm")),
    Sketcher.Constraint("DistanceX", -1, 1, 1, 2, Q("6.5385 in")),
    Sketcher.Constraint("DistanceY", 2, 2, -1, 1, Q("2.2302 in")),
    Sketcher.Constraint("DistanceY", 3, 2, -1, 1, Q("1.4089 in")),
    Sketcher.Constraint("Distance", 1, Q("172.0169 mm")),
    Sketcher.Constraint("Distance", 2, Q("201.679 mm")),
    Sketcher.Constraint("Distance", 3, Q("149.3117 mm")),
])
pocket4 = body.newObject("PartDesign::Pocket", "Pocket003")
pocket4.Profile = sketch9
pocket4.Length = Q("16 in")
pocket4.Reversed = True

# Sketch on YZ plane
sketch10 = body.newObject("Sketcher::SketchObject", "Sketch009")
sketch10.AttachmentSupport = (doc.getObject("YZ_Plane"), [""])
sketch10.MapMode = "FlatFace"
sketch10.AttachmentOffset = App.Placement(Vector(0, 0, 43.1), App.Rotation())
sketch10.addGeometry([
    Part.LineSegment(Vector(-10, 38, 0), Vector(-10, 0, 0)),
    Part.LineSegment(Vector(-10, 0, 0), Vector(2, 0, 0)),
    Part.LineSegment(Vector(2, 0, 0), Vector(2, 38, 0)),
    Part.LineSegment(Vector(2, 38, 0), Vector(-10, 38, 0)),
], False)
sketch10.addConstraint([
    Sketcher.Constraint("Coincident", 0, 2, 1, 1),
    Sketcher.Constraint("Coincident", 1, 2, 2, 1),
    Sketcher.Constraint("Coincident", 2, 2, 3, 1),
    Sketcher.Constraint("Coincident", 3, 2, 0, 1),
    Sketcher.Constraint("Vertical", 0),
    Sketcher.Constraint("Horizontal", 1),
    Sketcher.Constraint("Vertical", 2),
    Sketcher.Constraint("Horizontal", 3),
    Sketcher.Constraint("PointOnObject", 0, 2, -1),
    Sketcher.Constraint("DistanceX", 1, 1, 1, 2, Q("0.5 in")),
    Sketcher.Constraint("DistanceY", 0, 2, 0, 1, Q("1.5 in")),
    Sketcher.Constraint("DistanceX", 0, 2, -1, 1, Q("10.2 mm")),
])
pocket5 = body.newObject("PartDesign::Pocket", "Pocket004")
pocket5.Profile = sketch10
pocket5.Length = Q("6575 in")

# Sketch on XY plane
sketch11 = body.newObject("Sketcher::SketchObject", "Sketch010")
sketch11.AttachmentSupport = (doc.getObject("XY_Plane"), [""])
sketch11.MapMode = "FlatFace"
sketch11.AttachmentOffset = App.Placement(Vector(0, 0, 1.5 * 25.4), App.Rotation())
sketch11.addGeometry([
    Part.LineSegment(Vector(-38, 2, 0), Vector(-38, -10, 0)),  # 0
    Part.LineSegment(Vector(-38, -10, 0), Vector(-43, -10, 0)),  # 1
    Part.LineSegment(Vector(-43, -10, 0), Vector(-43, 2, 0)),  # 2
    Part.LineSegment(Vector(-43, 2, 0), Vector(-38, 2, 0)),  # 3
    Part.LineSegment(Vector(38, -10, 0), Vector(38, 2, 0)),  # 4
    Part.LineSegment(Vector(38, 2, 0), Vector(43, 2, 0)),  # 5
    Part.LineSegment(Vector(43, 2, 0), Vector(43, -10, 0)),  # 6
    Part.LineSegment(Vector(43, -10, 0), Vector(38, -10, 0)),  # 7
], False)
sketch11.addConstraint([
    Sketcher.Constraint("Coincident", 0, 2, 1, 1),
    Sketcher.Constraint("Coincident", 1, 2, 2, 1),
    Sketcher.Constraint("Coincident", 2, 2, 3, 1),
    Sketcher.Constraint("Coincident", 3, 2, 0, 1),
    Sketcher.Constraint("Coincident", 4, 2, 5, 1),
    Sketcher.Constraint("Coincident", 5, 2, 6, 1),
    Sketcher.Constraint("Coincident", 6, 2, 7, 1),
    Sketcher.Constraint("Coincident", 7, 2, 4, 1),
    Sketcher.Constraint("Vertical", 0),
    Sketcher.Constraint("Horizontal", 1),
    Sketcher.Constraint("Vertical", 2),
    Sketcher.Constraint("Horizontal", 3),
    Sketcher.Constraint("Vertical", 4),
    Sketcher.Constraint("Horizontal", 5),
    Sketcher.Constraint("Vertical", 6),
    Sketcher.Constraint("Horizontal", 7),
    Sketcher.Constraint("Symmetric", 3, 2, 4, 2, -2),
    Sketcher.Constraint("Symmetric", 1, 2, 6, 2, -2),
    Sketcher.Constraint("DistanceY", 0, 2, 0, 1, Q("0.5 in")),
    Sketcher.Constraint("DistanceX", 3, 2, 4, 2, Q("3 in")),
    Sketcher.Constraint("DistanceX", 1, 2, 1, 1, Q("5 mm")),
    Sketcher.Constraint("DistanceY", 0, 2, -1, 1, Q("10.2 mm")),
])
pad6 = body.newObject("PartDesign::Pad", "Pad005")
pad6.Profile = sketch11
pad6.Length = Q("0.5 in")
pad6.Reversed = True

doc.recompute()
